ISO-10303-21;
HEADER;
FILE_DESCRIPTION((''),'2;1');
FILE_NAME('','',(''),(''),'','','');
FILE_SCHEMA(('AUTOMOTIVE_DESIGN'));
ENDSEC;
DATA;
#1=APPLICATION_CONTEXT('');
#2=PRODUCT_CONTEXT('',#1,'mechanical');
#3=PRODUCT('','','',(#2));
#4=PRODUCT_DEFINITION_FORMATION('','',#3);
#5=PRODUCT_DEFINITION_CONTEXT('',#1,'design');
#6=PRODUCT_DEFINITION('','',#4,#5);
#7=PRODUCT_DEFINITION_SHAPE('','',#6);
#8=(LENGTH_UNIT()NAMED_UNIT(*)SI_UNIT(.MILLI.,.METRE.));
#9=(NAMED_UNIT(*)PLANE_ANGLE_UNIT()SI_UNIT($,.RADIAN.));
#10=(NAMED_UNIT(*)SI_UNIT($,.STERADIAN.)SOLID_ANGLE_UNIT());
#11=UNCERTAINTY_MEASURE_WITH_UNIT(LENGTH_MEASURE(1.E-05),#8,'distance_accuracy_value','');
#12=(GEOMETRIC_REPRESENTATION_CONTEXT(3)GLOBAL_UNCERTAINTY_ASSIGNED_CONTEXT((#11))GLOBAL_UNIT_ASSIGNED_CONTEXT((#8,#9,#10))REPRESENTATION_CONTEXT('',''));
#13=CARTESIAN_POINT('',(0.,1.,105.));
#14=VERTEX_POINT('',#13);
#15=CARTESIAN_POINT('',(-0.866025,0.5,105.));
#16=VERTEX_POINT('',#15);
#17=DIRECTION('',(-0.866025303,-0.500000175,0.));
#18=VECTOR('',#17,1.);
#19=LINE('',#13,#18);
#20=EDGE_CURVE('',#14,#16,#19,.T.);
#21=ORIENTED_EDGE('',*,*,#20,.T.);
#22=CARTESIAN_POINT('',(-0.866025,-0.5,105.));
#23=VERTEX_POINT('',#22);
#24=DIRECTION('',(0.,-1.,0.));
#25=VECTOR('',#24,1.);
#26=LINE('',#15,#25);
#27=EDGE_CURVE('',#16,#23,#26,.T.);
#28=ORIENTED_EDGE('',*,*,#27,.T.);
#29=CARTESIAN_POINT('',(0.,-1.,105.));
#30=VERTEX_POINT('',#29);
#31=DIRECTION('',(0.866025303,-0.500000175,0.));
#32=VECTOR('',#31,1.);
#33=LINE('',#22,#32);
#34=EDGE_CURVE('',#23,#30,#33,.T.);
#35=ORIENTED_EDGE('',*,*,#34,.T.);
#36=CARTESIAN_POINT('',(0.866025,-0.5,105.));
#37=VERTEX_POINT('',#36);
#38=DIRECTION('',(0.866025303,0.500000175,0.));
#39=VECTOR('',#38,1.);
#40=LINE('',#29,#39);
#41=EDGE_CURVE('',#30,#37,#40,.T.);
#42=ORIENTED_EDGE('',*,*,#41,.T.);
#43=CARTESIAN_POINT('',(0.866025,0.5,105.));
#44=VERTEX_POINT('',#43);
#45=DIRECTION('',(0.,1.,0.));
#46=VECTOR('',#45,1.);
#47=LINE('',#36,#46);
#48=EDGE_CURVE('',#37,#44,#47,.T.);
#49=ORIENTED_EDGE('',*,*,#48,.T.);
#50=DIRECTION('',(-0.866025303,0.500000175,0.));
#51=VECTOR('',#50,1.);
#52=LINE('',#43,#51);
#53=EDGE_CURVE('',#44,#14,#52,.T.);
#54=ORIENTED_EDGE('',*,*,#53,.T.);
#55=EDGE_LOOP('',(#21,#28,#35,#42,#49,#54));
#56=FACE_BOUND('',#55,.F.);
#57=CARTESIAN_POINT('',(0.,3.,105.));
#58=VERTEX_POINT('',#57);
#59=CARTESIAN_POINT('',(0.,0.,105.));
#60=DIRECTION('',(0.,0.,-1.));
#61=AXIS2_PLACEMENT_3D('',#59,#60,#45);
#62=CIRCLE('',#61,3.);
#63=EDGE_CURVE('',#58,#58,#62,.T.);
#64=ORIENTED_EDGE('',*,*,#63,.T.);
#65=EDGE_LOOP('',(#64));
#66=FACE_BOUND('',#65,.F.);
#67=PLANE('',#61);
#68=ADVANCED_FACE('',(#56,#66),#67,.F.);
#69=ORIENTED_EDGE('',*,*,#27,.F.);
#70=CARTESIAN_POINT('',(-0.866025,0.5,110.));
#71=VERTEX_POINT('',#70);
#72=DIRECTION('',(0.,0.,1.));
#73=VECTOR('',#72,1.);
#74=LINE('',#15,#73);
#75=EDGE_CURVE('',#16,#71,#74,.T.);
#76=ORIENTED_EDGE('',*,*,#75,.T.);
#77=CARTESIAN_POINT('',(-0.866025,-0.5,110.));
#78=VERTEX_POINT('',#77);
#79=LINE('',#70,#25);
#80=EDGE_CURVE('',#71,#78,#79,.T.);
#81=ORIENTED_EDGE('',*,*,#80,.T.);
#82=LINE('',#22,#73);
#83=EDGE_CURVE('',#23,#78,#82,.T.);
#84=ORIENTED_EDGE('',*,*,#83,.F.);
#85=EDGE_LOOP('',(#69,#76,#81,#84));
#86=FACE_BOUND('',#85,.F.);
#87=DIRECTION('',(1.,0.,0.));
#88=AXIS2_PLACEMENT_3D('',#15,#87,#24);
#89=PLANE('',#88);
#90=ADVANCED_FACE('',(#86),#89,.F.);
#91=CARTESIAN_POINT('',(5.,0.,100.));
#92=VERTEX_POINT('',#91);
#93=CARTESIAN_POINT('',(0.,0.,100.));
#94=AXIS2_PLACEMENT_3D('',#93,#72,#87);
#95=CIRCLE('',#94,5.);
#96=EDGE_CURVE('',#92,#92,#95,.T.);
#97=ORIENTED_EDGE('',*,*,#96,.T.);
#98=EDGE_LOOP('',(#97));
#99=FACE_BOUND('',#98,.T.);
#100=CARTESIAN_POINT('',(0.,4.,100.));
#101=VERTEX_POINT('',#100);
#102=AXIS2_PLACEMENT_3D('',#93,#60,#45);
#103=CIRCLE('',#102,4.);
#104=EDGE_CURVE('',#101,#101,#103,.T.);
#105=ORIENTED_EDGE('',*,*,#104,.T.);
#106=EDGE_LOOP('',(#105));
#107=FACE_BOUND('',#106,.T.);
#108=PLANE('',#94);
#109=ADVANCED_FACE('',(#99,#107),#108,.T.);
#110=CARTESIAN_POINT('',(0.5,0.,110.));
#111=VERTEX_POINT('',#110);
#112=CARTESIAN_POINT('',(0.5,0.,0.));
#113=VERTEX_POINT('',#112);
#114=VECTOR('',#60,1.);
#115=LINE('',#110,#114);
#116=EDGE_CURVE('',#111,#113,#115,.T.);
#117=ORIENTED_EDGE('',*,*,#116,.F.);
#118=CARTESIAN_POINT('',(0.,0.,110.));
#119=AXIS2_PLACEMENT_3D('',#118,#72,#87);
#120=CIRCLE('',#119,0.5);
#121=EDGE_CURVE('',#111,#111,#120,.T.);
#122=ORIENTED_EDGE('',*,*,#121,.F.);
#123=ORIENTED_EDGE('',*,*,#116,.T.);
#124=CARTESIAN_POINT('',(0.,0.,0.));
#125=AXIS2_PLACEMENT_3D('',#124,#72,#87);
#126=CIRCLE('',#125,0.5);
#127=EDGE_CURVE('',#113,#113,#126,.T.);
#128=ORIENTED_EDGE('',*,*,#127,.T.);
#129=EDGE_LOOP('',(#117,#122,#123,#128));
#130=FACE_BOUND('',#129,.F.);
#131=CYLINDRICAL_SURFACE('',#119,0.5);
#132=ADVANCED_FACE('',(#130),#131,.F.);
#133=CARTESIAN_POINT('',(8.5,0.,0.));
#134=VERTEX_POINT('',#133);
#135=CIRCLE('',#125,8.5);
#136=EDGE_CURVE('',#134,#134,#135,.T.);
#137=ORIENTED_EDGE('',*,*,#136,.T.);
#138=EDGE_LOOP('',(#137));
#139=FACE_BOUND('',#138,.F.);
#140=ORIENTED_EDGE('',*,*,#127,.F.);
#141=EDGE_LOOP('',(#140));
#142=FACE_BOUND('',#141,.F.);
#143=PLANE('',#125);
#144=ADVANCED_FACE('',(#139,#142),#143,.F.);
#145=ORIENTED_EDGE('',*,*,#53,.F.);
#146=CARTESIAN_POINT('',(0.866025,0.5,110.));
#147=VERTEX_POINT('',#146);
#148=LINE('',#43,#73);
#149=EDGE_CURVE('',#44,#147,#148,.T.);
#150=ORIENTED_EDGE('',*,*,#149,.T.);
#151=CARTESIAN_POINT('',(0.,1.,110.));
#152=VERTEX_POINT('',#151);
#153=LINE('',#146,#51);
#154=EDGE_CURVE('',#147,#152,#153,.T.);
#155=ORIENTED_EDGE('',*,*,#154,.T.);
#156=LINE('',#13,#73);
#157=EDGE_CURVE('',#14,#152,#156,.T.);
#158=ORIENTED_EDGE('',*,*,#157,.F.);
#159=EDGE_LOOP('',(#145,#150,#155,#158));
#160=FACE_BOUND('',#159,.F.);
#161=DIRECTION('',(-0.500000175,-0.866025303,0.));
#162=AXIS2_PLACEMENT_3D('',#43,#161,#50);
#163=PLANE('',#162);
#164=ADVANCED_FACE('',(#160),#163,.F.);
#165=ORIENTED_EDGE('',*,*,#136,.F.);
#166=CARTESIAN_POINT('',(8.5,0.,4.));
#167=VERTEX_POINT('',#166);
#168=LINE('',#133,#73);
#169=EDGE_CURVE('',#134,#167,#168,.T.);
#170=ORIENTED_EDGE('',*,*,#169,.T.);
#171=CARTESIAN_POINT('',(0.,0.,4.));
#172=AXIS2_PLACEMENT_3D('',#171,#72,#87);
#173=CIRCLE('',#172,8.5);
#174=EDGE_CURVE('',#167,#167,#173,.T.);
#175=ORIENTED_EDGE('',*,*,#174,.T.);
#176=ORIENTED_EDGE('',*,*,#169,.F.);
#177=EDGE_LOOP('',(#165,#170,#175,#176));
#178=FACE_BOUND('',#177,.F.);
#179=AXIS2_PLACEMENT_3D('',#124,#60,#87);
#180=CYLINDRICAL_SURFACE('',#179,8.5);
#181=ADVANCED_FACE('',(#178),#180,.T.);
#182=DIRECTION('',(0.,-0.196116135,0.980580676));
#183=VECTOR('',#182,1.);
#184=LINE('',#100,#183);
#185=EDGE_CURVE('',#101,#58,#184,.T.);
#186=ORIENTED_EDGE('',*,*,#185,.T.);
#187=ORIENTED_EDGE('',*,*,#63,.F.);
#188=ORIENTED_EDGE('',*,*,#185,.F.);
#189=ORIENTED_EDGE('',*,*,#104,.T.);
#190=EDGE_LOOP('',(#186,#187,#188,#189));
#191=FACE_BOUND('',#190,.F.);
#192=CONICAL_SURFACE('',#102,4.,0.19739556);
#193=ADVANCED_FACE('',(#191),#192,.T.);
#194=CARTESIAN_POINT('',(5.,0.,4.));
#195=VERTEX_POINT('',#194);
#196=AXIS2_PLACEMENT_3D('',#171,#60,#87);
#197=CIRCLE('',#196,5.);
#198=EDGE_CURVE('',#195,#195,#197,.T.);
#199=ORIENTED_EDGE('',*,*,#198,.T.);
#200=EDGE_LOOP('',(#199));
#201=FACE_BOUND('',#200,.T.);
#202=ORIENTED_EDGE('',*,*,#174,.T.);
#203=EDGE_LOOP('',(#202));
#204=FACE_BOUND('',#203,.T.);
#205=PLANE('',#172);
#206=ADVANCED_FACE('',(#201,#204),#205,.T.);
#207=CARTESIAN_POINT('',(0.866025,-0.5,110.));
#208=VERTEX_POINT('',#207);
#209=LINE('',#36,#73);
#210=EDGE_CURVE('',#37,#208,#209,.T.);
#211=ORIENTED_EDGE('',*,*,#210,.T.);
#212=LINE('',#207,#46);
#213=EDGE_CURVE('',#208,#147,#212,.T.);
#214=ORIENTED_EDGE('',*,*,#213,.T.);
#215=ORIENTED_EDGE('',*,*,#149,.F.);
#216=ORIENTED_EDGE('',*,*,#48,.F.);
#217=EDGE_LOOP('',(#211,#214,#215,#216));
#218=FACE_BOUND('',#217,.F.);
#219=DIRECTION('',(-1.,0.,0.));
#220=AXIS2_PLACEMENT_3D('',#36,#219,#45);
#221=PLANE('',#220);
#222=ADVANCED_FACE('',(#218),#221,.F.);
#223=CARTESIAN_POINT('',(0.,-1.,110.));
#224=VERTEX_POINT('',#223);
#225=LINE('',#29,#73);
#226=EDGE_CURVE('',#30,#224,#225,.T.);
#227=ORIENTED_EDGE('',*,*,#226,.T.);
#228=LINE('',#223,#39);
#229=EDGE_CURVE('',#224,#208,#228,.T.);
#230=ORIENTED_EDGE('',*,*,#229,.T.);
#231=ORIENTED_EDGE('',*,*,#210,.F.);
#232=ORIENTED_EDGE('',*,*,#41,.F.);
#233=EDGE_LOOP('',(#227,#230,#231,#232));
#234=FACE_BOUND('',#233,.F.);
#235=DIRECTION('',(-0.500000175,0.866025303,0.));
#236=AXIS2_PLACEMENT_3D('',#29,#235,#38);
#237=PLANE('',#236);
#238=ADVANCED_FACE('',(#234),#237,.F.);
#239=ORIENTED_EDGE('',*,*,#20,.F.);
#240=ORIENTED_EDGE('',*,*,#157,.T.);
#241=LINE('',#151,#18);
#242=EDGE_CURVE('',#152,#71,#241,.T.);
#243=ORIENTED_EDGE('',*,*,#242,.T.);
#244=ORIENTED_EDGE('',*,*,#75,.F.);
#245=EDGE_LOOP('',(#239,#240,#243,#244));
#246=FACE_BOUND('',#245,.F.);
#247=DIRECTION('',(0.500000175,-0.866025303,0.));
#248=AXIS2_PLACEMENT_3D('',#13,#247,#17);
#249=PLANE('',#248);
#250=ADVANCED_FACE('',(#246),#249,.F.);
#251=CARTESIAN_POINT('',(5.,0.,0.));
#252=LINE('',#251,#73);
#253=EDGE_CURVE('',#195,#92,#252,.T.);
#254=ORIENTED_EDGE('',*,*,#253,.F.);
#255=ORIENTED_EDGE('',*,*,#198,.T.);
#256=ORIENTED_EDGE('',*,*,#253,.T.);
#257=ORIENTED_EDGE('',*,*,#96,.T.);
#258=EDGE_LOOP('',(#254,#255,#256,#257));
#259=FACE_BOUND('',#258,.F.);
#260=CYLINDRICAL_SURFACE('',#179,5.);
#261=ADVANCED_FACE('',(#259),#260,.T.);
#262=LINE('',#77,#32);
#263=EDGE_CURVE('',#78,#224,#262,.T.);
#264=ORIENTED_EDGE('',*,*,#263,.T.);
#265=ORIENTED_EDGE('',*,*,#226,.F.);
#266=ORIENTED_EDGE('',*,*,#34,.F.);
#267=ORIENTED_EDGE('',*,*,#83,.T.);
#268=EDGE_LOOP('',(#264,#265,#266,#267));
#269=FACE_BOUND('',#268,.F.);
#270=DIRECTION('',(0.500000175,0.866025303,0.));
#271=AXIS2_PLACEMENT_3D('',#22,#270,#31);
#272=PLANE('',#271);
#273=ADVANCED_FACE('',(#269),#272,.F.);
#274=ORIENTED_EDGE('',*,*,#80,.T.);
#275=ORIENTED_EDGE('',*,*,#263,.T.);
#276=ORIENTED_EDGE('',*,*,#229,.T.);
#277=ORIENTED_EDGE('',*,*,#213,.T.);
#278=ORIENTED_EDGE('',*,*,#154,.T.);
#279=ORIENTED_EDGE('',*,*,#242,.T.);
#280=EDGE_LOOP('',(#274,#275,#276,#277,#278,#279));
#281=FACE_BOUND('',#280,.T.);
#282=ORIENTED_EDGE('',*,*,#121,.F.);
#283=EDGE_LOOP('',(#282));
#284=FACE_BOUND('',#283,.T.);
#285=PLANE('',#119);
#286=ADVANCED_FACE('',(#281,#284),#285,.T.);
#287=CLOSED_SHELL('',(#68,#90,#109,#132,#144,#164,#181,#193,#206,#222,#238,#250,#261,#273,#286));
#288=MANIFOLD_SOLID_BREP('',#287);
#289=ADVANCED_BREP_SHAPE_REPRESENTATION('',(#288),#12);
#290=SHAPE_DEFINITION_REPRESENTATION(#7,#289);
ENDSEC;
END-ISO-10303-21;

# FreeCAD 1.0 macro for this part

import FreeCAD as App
import Part
import Sketcher

V = App.Vector
Q = App.Units.Quantity

doc = App.newDocument("Part")
body = doc.addObject("PartDesign::Body", "Body")

# Sketch on XY plane
sketch1 = body.newObject("Sketcher::SketchObject", "Sketch")
sketch1.AttachmentSupport = (doc.getObject("XY_Plane"), [""])
sketch1.MapMode = "FlatFace"
sketch1.addGeometry(Part.Circle(V(0, 0, 0), V(0, 0, 1), 8), False)
sketch1.addConstraint(Sketcher.Constraint("Coincident", 0, 3, -1, 1))
sketch1.addConstraint(Sketcher.Constraint("Diameter", 0, Q("17 mm")))
pad1 = body.newObject("PartDesign::Pad", "Pad")
pad1.Profile = sketch1
pad1.Length = 4

# Sketch on XY plane
sketch2 = body.newObject("Sketcher::SketchObject", "Sketch001")
sketch2.AttachmentSupport = (doc.getObject("XY_Plane"), [""])
sketch2.MapMode = "FlatFace"
sketch2.addGeometry(Part.Circle(V(0, 0, 0), V(0, 0, 1), 5), False)
sketch2.addConstraint(Sketcher.Constraint("Coincident", 0, 3, -1, 1))
sketch2.addConstraint(Sketcher.Constraint("Diameter", 0, Q("10 mm")))
pad2 = body.newObject("PartDesign::Pad", "Pad001")
pad2.Profile = sketch2
pad2.Length = 100

# Sketch on YZ plane
sketch3 = body.newObject("Sketcher::SketchObject", "Sketch002")
sketch3.AttachmentSupport = (doc.getObject("YZ_Plane"), [""])
sketch3.MapMode = "FlatFace"
sketch3.addGeometry(Part.LineSegment(V(3, 105, 0), V(0, 105, 0)), False)
sketch3.addGeometry(Part.LineSegment(V(0, 105, 0), V(0, 100, 0)), False)
sketch3.addGeometry(Part.LineSegment(V(0, 100, 0), V(4, 100, 0)), False)
sketch3.addGeometry(Part.LineSegment(V(4, 100, 0), V(3, 105, 0)), False)
sketch3.addConstraint(Sketcher.Constraint("Coincident", 0, 2, 1, 1))
sketch3.addConstraint(Sketcher.Constraint("Coincident", 1, 2, 2, 1))
sketch3.addConstraint(Sketcher.Constraint("Coincident", 2, 2, 3, 1))
sketch3.addConstraint(Sketcher.Constraint("Coincident", 3, 2, 0, 1))
sketch3.addConstraint(Sketcher.Constraint("Horizontal", 0))
sketch3.addConstraint(Sketcher.Constraint("Vertical", 1))
sketch3.addConstraint(Sketcher.Constraint("Horizontal", 2))
sketch3.addConstraint(Sketcher.Constraint("PointOnObject", 0, 2, -2))
sketch3.addConstraint(Sketcher.Constraint("DistanceX", 0, 2, 0, 1, Q("3 mm")))
sketch3.addConstraint(Sketcher.Constraint("DistanceX", 2, 1, 2, 2, Q("4 mm")))
sketch3.addConstraint(Sketcher.Constraint("DistanceY", 1, 2, 1, 1, Q("5 mm")))
sketch3.addConstraint(Sketcher.Constraint("DistanceY", -1, 1, 0, 2, Q("105 mm")))
revolution = body.newObject("PartDesign::Revolution", "Revolution")
revolution.Profile = sketch3
revolution.ReferenceAxis = (sketch3, ["V_Axis"])
revolution.Angle = 360

# Sketch on XY plane
sketch4 = body.newObject("Sketcher::SketchObject", "Sketch003")
sketch4.AttachmentSupport = (doc.getObject("XY_Plane"), [""])
sketch4.MapMode = "FlatFace"
sketch4.AttachmentOffset = App.Placement(V(0, 0, 105), App.Rotation())
sketch4.addGeometry(Part.LineSegment(V(0.9, -0.5, 0), V(0.9, 0.5, 0)), False)
sketch4.addGeometry(Part.LineSegment(V(0.9, 0.5, 0), V(0, 1, 0)), False)
sketch4.addGeometry(Part.LineSegment(V(0, 1, 0), V(-0.9, 0.5, 0)), False)
sketch4.addGeometry(Part.LineSegment(V(-0.9, 0.5, 0), V(-0.9, -0.5, 0)), False)
sketch4.addGeometry(Part.LineSegment(V(-0.9, -0.5, 0), V(0, -1, 0)), False)
sketch4.addGeometry(Part.LineSegment(V(0, -1, 0), V(0.9, -0.5, 0)), False)
sketch4.addConstraint(Sketcher.Constraint("Coincident", 0, 2, 1, 1))
sketch4.addConstraint(Sketcher.Constraint("Coincident", 1, 2, 2, 1))
sketch4.addConstraint(Sketcher.Constraint("Coincident", 2, 2, 3, 1))
sketch4.addConstraint(Sketcher.Constraint("Coincident", 3, 2, 4, 1))
sketch4.addConstraint(Sketcher.Constraint("Coincident", 4, 2, 5, 1))
sketch4.addConstraint(Sketcher.Constraint("Coincident", 5, 2, 0, 1))
sketch4.addConstraint(Sketcher.Constraint("Vertical", 0))
sketch4.addConstraint(Sketcher.Constraint("Vertical", 3))
sketch4.addConstraint(Sketcher.Constraint("Symmetric", 0, 2, 3, 2, -1, 1))
sketch4.addConstraint(Sketcher.Constraint("Symmetric", 1, 2, 4, 2, -1, 1))
sketch4.addConstraint(Sketcher.Constraint("PointOnObject", 1, 2, -2))
sketch4.addConstraint(Sketcher.Constraint("Parallel", 2, 5))
sketch4.addConstraint(Sketcher.Constraint("Horizontal", 0, 2, 2, 2))
sketch4.addConstraint(Sketcher.Constraint("DistanceY", 0, 1, 0, 2, Q("1 mm")))
sketch4.addConstraint(Sketcher.Constraint("Angle", 1, Q("149.999988 deg")))
sketch4.addConstraint(Sketcher.Constraint("Distance", 1, Q("1 mm")))
pad3 = body.newObject("PartDesign::Pad", "Pad002")
pad3.Profile = sketch4
pad3.Length = 5

# Sketch on XY plane
sketch5 = body.newObject("Sketcher::SketchObject", "Sketch004")
sketch5.AttachmentSupport = (doc.getObject("XY_Plane"), [""])
sketch5.MapMode = "FlatFace"
sketch5.AttachmentOffset = App.Placement(V(0, 0, 110), App.Rotation())
sketch5.addGeometry(Part.Circle(V(0, 0, 0), V(0, 0, 1), 0.5), False)
sketch5.addConstraint(Sketcher.Constraint("Coincident", 0, 3, -1, 1))
sketch5.addConstraint(Sketcher.Constraint("Diameter", 0, Q("1 mm")))
pocket1 = body.newObject("PartDesign::Pocket", "Pocket")
pocket1.Profile = sketch5
pocket1.Length = 120

doc.recompute()
